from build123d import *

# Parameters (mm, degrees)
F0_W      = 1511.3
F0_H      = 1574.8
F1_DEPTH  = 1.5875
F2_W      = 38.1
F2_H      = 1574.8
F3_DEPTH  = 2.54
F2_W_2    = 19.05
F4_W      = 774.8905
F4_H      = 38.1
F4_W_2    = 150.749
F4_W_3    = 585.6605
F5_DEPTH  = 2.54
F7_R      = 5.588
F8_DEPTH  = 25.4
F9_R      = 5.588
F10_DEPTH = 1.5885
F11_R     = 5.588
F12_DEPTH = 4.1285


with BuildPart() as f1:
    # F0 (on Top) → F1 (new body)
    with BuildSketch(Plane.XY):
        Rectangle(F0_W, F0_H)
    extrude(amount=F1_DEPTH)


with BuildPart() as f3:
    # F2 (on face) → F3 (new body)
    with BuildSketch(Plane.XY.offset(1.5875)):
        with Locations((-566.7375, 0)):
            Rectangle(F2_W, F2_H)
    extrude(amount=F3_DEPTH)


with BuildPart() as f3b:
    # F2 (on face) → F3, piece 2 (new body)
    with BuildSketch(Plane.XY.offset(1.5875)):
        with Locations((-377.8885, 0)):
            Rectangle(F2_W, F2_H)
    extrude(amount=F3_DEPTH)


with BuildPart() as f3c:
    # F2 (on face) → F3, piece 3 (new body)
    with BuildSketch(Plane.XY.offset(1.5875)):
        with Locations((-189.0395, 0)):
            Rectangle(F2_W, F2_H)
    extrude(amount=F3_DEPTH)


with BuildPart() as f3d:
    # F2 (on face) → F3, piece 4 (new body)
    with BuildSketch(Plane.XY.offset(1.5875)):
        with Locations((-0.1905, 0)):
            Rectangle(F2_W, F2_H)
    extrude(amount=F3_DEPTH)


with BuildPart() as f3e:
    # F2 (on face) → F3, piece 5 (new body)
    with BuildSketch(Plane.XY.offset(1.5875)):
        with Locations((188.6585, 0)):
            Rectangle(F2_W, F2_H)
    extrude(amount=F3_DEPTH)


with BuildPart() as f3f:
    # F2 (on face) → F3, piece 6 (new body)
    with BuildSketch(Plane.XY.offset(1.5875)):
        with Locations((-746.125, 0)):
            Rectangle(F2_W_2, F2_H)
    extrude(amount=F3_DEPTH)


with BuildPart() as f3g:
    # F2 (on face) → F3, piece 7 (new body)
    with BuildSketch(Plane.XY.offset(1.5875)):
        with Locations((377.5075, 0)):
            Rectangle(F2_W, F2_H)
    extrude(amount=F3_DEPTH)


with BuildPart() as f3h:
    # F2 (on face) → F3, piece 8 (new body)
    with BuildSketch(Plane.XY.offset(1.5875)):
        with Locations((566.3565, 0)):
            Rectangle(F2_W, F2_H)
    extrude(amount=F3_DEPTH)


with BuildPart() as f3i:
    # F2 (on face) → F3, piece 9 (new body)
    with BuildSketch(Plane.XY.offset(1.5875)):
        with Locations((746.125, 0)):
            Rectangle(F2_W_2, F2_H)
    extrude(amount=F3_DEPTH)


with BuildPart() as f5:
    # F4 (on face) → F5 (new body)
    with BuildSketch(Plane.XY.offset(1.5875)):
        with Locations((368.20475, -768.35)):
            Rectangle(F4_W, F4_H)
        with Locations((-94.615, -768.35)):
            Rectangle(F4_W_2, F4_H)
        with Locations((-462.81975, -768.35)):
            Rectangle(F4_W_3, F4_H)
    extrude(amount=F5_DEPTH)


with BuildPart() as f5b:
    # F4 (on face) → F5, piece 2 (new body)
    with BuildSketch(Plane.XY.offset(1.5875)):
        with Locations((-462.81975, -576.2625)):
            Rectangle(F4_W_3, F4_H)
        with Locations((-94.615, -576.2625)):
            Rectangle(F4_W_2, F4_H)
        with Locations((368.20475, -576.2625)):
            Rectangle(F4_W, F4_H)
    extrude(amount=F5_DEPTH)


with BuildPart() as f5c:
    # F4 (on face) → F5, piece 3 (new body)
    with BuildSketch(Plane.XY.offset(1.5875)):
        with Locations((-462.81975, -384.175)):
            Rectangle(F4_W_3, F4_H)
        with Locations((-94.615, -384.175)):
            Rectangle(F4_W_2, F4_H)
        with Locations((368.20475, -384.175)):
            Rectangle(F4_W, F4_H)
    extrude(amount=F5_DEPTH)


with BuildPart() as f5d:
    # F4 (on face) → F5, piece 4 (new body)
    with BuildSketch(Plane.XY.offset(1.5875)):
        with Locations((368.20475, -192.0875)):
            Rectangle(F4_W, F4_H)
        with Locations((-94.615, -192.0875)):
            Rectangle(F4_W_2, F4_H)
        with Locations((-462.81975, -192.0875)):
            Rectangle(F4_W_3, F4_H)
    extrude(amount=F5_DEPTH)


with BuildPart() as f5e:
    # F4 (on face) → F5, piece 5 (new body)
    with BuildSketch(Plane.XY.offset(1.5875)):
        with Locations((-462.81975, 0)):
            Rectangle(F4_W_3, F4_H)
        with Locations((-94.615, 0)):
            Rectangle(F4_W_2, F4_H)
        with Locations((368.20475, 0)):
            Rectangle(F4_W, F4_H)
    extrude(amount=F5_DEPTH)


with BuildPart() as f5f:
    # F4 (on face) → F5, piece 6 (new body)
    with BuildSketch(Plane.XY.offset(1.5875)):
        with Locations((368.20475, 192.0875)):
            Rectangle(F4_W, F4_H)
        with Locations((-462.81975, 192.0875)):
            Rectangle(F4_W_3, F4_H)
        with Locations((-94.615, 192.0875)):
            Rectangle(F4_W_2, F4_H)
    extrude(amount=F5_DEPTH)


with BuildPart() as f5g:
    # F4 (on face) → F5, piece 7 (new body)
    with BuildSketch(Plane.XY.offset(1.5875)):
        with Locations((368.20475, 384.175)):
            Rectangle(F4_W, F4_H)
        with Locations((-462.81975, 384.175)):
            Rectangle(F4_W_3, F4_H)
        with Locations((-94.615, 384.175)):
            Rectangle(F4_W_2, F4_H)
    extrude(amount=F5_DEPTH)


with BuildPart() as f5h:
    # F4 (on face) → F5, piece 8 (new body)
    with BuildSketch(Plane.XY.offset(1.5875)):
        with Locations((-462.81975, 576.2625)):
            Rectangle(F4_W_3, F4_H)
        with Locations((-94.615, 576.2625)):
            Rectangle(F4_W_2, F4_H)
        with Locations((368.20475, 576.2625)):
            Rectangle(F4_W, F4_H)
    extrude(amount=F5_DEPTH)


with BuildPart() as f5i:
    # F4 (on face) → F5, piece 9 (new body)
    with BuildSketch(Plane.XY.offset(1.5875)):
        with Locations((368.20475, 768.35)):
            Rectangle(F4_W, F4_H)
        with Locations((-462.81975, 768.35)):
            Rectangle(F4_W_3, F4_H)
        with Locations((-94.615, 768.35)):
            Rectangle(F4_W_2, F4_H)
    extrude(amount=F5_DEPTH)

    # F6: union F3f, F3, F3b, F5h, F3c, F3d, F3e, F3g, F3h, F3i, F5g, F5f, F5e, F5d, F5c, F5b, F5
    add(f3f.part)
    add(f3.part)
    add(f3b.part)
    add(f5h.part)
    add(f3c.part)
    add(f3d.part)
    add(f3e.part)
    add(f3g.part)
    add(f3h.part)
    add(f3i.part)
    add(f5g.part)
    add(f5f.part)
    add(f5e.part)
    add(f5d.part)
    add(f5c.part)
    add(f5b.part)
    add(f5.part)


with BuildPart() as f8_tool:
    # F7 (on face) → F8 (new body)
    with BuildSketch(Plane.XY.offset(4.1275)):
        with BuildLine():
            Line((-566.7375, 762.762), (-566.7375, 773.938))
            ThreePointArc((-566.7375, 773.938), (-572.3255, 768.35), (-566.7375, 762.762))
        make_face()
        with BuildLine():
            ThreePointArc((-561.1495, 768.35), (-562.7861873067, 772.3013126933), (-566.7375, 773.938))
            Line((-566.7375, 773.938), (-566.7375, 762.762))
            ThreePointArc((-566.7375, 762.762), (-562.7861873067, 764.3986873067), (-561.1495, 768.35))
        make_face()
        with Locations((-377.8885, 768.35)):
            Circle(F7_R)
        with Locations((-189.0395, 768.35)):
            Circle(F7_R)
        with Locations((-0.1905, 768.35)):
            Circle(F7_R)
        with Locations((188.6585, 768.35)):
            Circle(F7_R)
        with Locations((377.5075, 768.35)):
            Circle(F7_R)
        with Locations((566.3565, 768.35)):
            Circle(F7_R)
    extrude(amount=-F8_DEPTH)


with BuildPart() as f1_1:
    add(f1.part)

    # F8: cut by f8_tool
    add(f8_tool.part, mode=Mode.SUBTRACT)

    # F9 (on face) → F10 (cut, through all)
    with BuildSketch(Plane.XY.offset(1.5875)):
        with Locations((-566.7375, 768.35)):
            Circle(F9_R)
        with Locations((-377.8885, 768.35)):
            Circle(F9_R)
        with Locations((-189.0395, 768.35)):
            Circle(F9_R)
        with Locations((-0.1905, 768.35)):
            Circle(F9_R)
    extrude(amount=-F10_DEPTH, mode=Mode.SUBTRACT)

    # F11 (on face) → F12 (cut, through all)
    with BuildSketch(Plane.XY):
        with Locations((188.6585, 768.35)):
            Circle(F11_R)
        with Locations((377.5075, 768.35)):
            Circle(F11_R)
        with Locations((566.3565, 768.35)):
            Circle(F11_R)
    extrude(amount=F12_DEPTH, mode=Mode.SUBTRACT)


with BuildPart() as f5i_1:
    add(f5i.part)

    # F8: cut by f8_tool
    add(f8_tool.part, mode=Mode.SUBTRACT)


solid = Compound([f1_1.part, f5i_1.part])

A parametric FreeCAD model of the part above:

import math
import FreeCAD as App
import Part
import Sketcher

V = App.Vector
Q = App.Units.Quantity


def add_polygon(sketch, points):
    """Adds a closed chain of lines whose ends are joined by coincident constraints."""
    first, n = sketch.GeometryCount, len(points)
    for a, b in zip(points, points[1:] + points[:1]):
        sketch.addGeometry(Part.LineSegment(App.Vector(*a, 0), App.Vector(*b, 0)), False)
    for i in range(n):
        sketch.addConstraint(Sketcher.Constraint("Coincident", first + i, 2, first + (i + 1) % n, 1))

doc = App.newDocument("Part")
body = doc.addObject("PartDesign::Body", "Body")

sketch1 = body.newObject("Sketcher::SketchObject", "Sketch")
sketch1.AttachmentSupport = (doc.getObject("XY_Plane"), [""])
sketch1.MapMode = "FlatFace"
add_polygon(sketch1, [(-756, 787), (-756, -787), (756, -787), (756, 787)])
sketch1.addConstraint(Sketcher.Constraint("Vertical", 0))
sketch1.addConstraint(Sketcher.Constraint("Horizontal", 1))
sketch1.addConstraint(Sketcher.Constraint("Vertical", 2))
sketch1.addConstraint(Sketcher.Constraint("Horizontal", 3))
sketch1.addConstraint(Sketcher.Constraint("Symmetric", 0, 2, 2, 2, -1, 1))
sketch1.addConstraint(Sketcher.Constraint("DistanceY", 0, 2, 0, 1, Q("62 in")))
sketch1.addConstraint(Sketcher.Constraint("DistanceX", 1, 1, 1, 2, Q("59.5 in")))
pad1 = body.newObject("PartDesign::Pad", "Pad")
pad1.Profile = sketch1
pad1.Length = Q("0.0625 in")
body2 = doc.addObject("PartDesign::Body", "Body001")

sketch2 = body2.newObject("Sketcher::SketchObject", "Sketch001")
sketch2.AttachmentSupport = (doc.getObject("XY_Plane001"), [""])
sketch2.MapMode = "FlatFace"
sketch2.AttachmentOffset = App.Placement(V(0, 0, 0.0625 * 25.4), App.Rotation())
add_polygon(sketch2, [(-586, 787), (-586, -787), (-548, -787), (-548, 787)])
sketch2.addConstraint(Sketcher.Constraint("Vertical", 0))
sketch2.addConstraint(Sketcher.Constraint("Horizontal", 1))
sketch2.addConstraint(Sketcher.Constraint("Vertical", 2))
sketch2.addConstraint(Sketcher.Constraint("Horizontal", 3))
sketch2.addConstraint(Sketcher.Constraint("DistanceY", 0, 2, 0, 1, Q("62 in")))
sketch2.addConstraint(Sketcher.Constraint("DistanceX", 1, 1, 1, 2, Q("1.5 in")))
sketch2.addConstraint(Sketcher.Constraint("DistanceY", 0, 2, -1, 1, Q("31 in")))
sketch2.addConstraint(Sketcher.Constraint("DistanceX", 0, 2, -1, 1, Q("23.0625 in")))
pad2 = body2.newObject("PartDesign::Pad", "Pad001")
pad2.Profile = sketch2
pad2.Length = Q("0.1 in")
body3 = doc.addObject("PartDesign::Body", "Body002")

sketch3 = body3.newObject("Sketcher::SketchObject", "Sketch002")
sketch3.AttachmentSupport = (doc.getObject("XY_Plane002"), [""])
sketch3.MapMode = "FlatFace"
sketch3.AttachmentOffset = App.Placement(V(0, 0, 0.0625 * 25.4), App.Rotation())
add_polygon(sketch3, [(-397, 787), (-397, -787), (-359, -787), (-359, 787)])
sketch3.addConstraint(Sketcher.Constraint("Vertical", 0))
sketch3.addConstraint(Sketcher.Constraint("Horizontal", 1))
sketch3.addConstraint(Sketcher.Constraint("Vertical", 2))
sketch3.addConstraint(Sketcher.Constraint("Horizontal", 3))
sketch3.addConstraint(Sketcher.Constraint("DistanceY", 0, 2, 0, 1, Q("62 in")))
sketch3.addConstraint(Sketcher.Constraint("DistanceX", 1, 1, 1, 2, Q("1.5 in")))
sketch3.addConstraint(Sketcher.Constraint("DistanceY", 0, 2, -1, 1, Q("31 in")))
sketch3.addConstraint(Sketcher.Constraint("DistanceX", 0, 2, -1, 1, Q("15.6275 in")))
pad3 = body3.newObject("PartDesign::Pad", "Pad002")
pad3.Profile = sketch3
pad3.Length = Q("0.1 in")
body4 = doc.addObject("PartDesign::Body", "Body003")

sketch4 = body4.newObject("Sketcher::SketchObject", "Sketch003")
sketch4.AttachmentSupport = (doc.getObject("XY_Plane003"), [""])
sketch4.MapMode = "FlatFace"
sketch4.AttachmentOffset = App.Placement(V(0, 0, 0.0625 * 25.4), App.Rotation())
add_polygon(sketch4, [(-208, 787), (-208, -787), (-170, -787), (-170, 787)])
sketch4.addConstraint(Sketcher.Constraint("Vertical", 0))
sketch4.addConstraint(Sketcher.Constraint("Horizontal", 1))
sketch4.addConstraint(Sketcher.Constraint("Vertical", 2))
sketch4.addConstraint(Sketcher.Constraint("Horizontal", 3))
sketch4.addConstraint(Sketcher.Constraint("DistanceY", 0, 2, 0, 1, Q("62 in")))
sketch4.addConstraint(Sketcher.Constraint("DistanceX", 1, 1, 1, 2, Q("1.5 in")))
sketch4.addConstraint(Sketcher.Constraint("DistanceY", 0, 2, -1, 1, Q("31 in")))
sketch4.addConstraint(Sketcher.Constraint("DistanceX", 0, 2, -1, 1, Q("8.1925 in")))
pad4 = body4.newObject("PartDesign::Pad", "Pad003")
pad4.Profile = sketch4
pad4.Length = Q("0.1 in")
body5 = doc.addObject("PartDesign::Body", "Body004")

sketch5 = body5.newObject("Sketcher::SketchObject", "Sketch004")
sketch5.AttachmentSupport = (doc.getObject("XY_Plane004"), [""])
sketch5.MapMode = "FlatFace"
sketch5.AttachmentOffset = App.Placement(V(0, 0, 0.0625 * 25.4), App.Rotation())
add_polygon(sketch5, [(-19, 787), (-19, -787), (19, -787), (19, 787)])
sketch5.addConstraint(Sketcher.Constraint("Vertical", 0))
sketch5.addConstraint(Sketcher.Constraint("Horizontal", 1))
sketch5.addConstraint(Sketcher.Constraint("Vertical", 2))
sketch5.addConstraint(Sketcher.Constraint("Horizontal", 3))
sketch5.addConstraint(Sketcher.Constraint("DistanceY", 0, 2, 0, 1, Q("62 in")))
sketch5.addConstraint(Sketcher.Constraint("DistanceX", 1, 1, 1, 2, Q("1.5 in")))
sketch5.addConstraint(Sketcher.Constraint("DistanceY", 0, 2, -1, 1, Q("31 in")))
sketch5.addConstraint(Sketcher.Constraint("DistanceX", 0, 2, -1, 1, Q("0.7575 in")))
pad5 = body5.newObject("PartDesign::Pad", "Pad004")
pad5.Profile = sketch5
pad5.Length = Q("0.1 in")
body6 = doc.addObject("PartDesign::Body", "Body005")

sketch6 = body6.newObject("Sketcher::SketchObject", "Sketch005")
sketch6.AttachmentSupport = (doc.getObject("XY_Plane005"), [""])
sketch6.MapMode = "FlatFace"
sketch6.AttachmentOffset = App.Placement(V(0, 0, 0.0625 * 25.4), App.Rotation())
add_polygon(sketch6, [(170, 787), (170, -787), (208, -787), (208, 787)])
sketch6.addConstraint(Sketcher.Constraint("Vertical", 0))
sketch6.addConstraint(Sketcher.Constraint("Horizontal", 1))
sketch6.addConstraint(Sketcher.Constraint("Vertical", 2))
sketch6.addConstraint(Sketcher.Constraint("Horizontal", 3))
sketch6.addConstraint(Sketcher.Constraint("DistanceY", 0, 2, 0, 1, Q("62 in")))
sketch6.addConstraint(Sketcher.Constraint("DistanceX", 1, 1, 1, 2, Q("1.5 in")))
sketch6.addConstraint(Sketcher.Constraint("DistanceY", 0, 2, -1, 1, Q("31 in")))
sketch6.addConstraint(Sketcher.Constraint("DistanceX", -1, 1, 0, 2, Q("6.6775 in")))
pad6 = body6.newObject("PartDesign::Pad", "Pad005")
pad6.Profile = sketch6
pad6.Length = Q("0.1 in")
body7 = doc.addObject("PartDesign::Body", "Body006")

sketch7 = body7.newObject("Sketcher::SketchObject", "Sketch006")
sketch7.AttachmentSupport = (doc.getObject("XY_Plane006"), [""])
sketch7.MapMode = "FlatFace"
sketch7.AttachmentOffset = App.Placement(V(0, 0, 0.0625 * 25.4), App.Rotation())
add_polygon(sketch7, [(-756, 787), (-756, -787), (-737, -787), (-737, 787)])
sketch7.addConstraint(Sketcher.Constraint("Vertical", 0))
sketch7.addConstraint(Sketcher.Constraint("Horizontal", 1))
sketch7.addConstraint(Sketcher.Constraint("Vertical", 2))
sketch7.addConstraint(Sketcher.Constraint("Horizontal", 3))
sketch7.addConstraint(Sketcher.Constraint("DistanceY", 0, 2, 0, 1, Q("62 in")))
sketch7.addConstraint(Sketcher.Constraint("DistanceY", 0, 2, -1, 1, Q("31 in")))
sketch7.addConstraint(Sketcher.Constraint("DistanceX", 1, 2, -1, 1, Q("29 in")))
sketch7.addConstraint(Sketcher.Constraint("DistanceX", 1, 1, 1, 2, Q("0.75 in")))
pad7 = body7.newObject("PartDesign::Pad", "Pad006")
pad7.Profile = sketch7
pad7.Length = Q("0.1 in")
body8 = doc.addObject("PartDesign::Body", "Body007")

sketch8 = body8.newObject("Sketcher::SketchObject", "Sketch007")
sketch8.AttachmentSupport = (doc.getObject("XY_Plane007"), [""])
sketch8.MapMode = "FlatFace"
sketch8.AttachmentOffset = App.Placement(V(0, 0, 0.0625 * 25.4), App.Rotation())
add_polygon(sketch8, [(358, 787), (358, -787), (397, -787), (397, 787)])
sketch8.addConstraint(Sketcher.Constraint("Vertical", 0))
sketch8.addConstraint(Sketcher.Constraint("Horizontal", 1))
sketch8.addConstraint(Sketcher.Constraint("Vertical", 2))
sketch8.addConstraint(Sketcher.Constraint("Horizontal", 3))
sketch8.addConstraint(Sketcher.Constraint("DistanceY", 0, 2, 0, 1, Q("62 in")))
sketch8.addConstraint(Sketcher.Constraint("DistanceX", 1, 1, 1, 2, Q("1.5 in")))
sketch8.addConstraint(Sketcher.Constraint("DistanceY", 0, 2, -1, 1, Q("31 in")))
sketch8.addConstraint(Sketcher.Constraint("DistanceX", -1, 1, 0, 2, Q("14.1125 in")))
pad8 = body8.newObject("PartDesign::Pad", "Pad007")
pad8.Profile = sketch8
pad8.Length = Q("0.1 in")
body9 = doc.addObject("PartDesign::Body", "Body008")

sketch9 = body9.newObject("Sketcher::SketchObject", "Sketch008")
sketch9.AttachmentSupport = (doc.getObject("XY_Plane008"), [""])
sketch9.MapMode = "FlatFace"
sketch9.AttachmentOffset = App.Placement(V(0, 0, 0.0625 * 25.4), App.Rotation())
add_polygon(sketch9, [(547, 787), (547, -787), (585, -787), (585, 787)])
sketch9.addConstraint(Sketcher.Constraint("Vertical", 0))
sketch9.addConstraint(Sketcher.Constraint("Horizontal", 1))
sketch9.addConstraint(Sketcher.Constraint("Vertical", 2))
sketch9.addConstraint(Sketcher.Constraint("Horizontal", 3))
sketch9.addConstraint(Sketcher.Constraint("DistanceY", 0, 2, 0, 1, Q("62 in")))
sketch9.addConstraint(Sketcher.Constraint("DistanceX", 1, 1, 1, 2, Q("1.5 in")))
sketch9.addConstraint(Sketcher.Constraint("DistanceY", 0, 2, -1, 1, Q("31 in")))
sketch9.addConstraint(Sketcher.Constraint("DistanceX", -1, 1, 0, 2, Q("21.5475 in")))
pad9 = body9.newObject("PartDesign::Pad", "Pad008")
pad9.Profile = sketch9
pad9.Length = Q("0.1 in")
body10 = doc.addObject("PartDesign::Body", "Body009")

sketch10 = body10.newObject("Sketcher::SketchObject", "Sketch009")
sketch10.AttachmentSupport = (doc.getObject("XY_Plane009"), [""])
sketch10.MapMode = "FlatFace"
sketch10.AttachmentOffset = App.Placement(V(0, 0, 0.0625 * 25.4), App.Rotation())
add_polygon(sketch10, [(737, 787), (737, -787), (756, -787), (756, 787)])
sketch10.addConstraint(Sketcher.Constraint("Vertical", 0))
sketch10.addConstraint(Sketcher.Constraint("Horizontal", 1))
sketch10.addConstraint(Sketcher.Constraint("Vertical", 2))
sketch10.addConstraint(Sketcher.Constraint("Horizontal", 3))
sketch10.addConstraint(Sketcher.Constraint("DistanceY", 0, 2, 0, 1, Q("62 in")))
sketch10.addConstraint(Sketcher.Constraint("DistanceX", -1, 1, 0, 2, Q("29 in")))
sketch10.addConstraint(Sketcher.Constraint("DistanceY", 0, 2, -1, 1, Q("31 in")))
sketch10.addConstraint(Sketcher.Constraint("DistanceX", 1, 1, 1, 2, Q("0.75 in")))
pad10 = body10.newObject("PartDesign::Pad", "Pad009")
pad10.Profile = sketch10
pad10.Length = Q("0.1 in")
body11 = doc.addObject("PartDesign::Body", "Body010")

sketch11 = body11.newObject("Sketcher::SketchObject", "Sketch010")
sketch11.AttachmentSupport = (doc.getObject("XY_Plane010"), [""])
sketch11.MapMode = "FlatFace"
sketch11.AttachmentOffset = App.Placement(V(0, 0, 0.0625 * 25.4), App.Rotation())
add_polygon(sketch11, [(756, -787), (756, -749), (-756, -749), (-756, -787)])
sketch11.addConstraint(Sketcher.Constraint("Vertical", 0))
sketch11.addConstraint(Sketcher.Constraint("Horizontal", 1))
sketch11.addConstraint(Sketcher.Constraint("Vertical", 2))
sketch11.addConstraint(Sketcher.Constraint("Horizontal", 3))
sketch11.addConstraint(Sketcher.Constraint("DistanceX", 1, 2, 1, 1, Q("59.5 in")))
sketch11.addConstraint(Sketcher.Constraint("DistanceY", 0, 1, 0, 2, Q("1.5 in")))
sketch11.addConstraint(Sketcher.Constraint("DistanceY", 2, 2, -1, 1, Q("31 in")))
sketch11.addConstraint(Sketcher.Constraint("DistanceX", -1, 1, 0, 2, Q("29.75 in")))
pad11 = body11.newObject("PartDesign::Pad", "Pad010")
pad11.Profile = sketch11
pad11.Length = Q("0.1 in")
body12 = doc.addObject("PartDesign::Body", "Body011")

sketch12 = body12.newObject("Sketcher::SketchObject", "Sketch011")
sketch12.AttachmentSupport = (doc.getObject("XY_Plane011"), [""])
sketch12.MapMode = "FlatFace"
sketch12.AttachmentOffset = App.Placement(V(0, 0, 0.0625 * 25.4), App.Rotation())
add_polygon(sketch12, [(-756, -557), (-756, -595), (756, -595), (756, -557)])
sketch12.addConstraint(Sketcher.Constraint("Vertical", 0))
sketch12.addConstraint(Sketcher.Constraint("Horizontal", 1))
sketch12.addConstraint(Sketcher.Constraint("Vertical", 2))
sketch12.addConstraint(Sketcher.Constraint("Horizontal", 3))
sketch12.addConstraint(Sketcher.Constraint("DistanceX", 1, 1, 1, 2, Q("59.5 in")))
sketch12.addConstraint(Sketcher.Constraint("DistanceY", 0, 2, 0, 1, Q("1.5 in")))
sketch12.addConstraint(Sketcher.Constraint("DistanceX", 0, 2, -1, 1, Q("29.75 in")))
sketch12.addConstraint(Sketcher.Constraint("DistanceY", 0, 2, -1, 1, Q("23.4375 in")))
pad12 = body12.newObject("PartDesign::Pad", "Pad011")
pad12.Profile = sketch12
pad12.Length = Q("0.1 in")
body13 = doc.addObject("PartDesign::Body", "Body012")

sketch13 = body13.newObject("Sketcher::SketchObject", "Sketch012")
sketch13.AttachmentSupport = (doc.getObject("XY_Plane012"), [""])
sketch13.MapMode = "FlatFace"
sketch13.AttachmentOffset = App.Placement(V(0, 0, 0.0625 * 25.4), App.Rotation())
add_polygon(sketch13, [(-756, -365), (-756, -403), (756, -403), (756, -365)])
sketch13.addConstraint(Sketcher.Constraint("Vertical", 0))
sketch13.addConstraint(Sketcher.Constraint("Horizontal", 1))
sketch13.addConstraint(Sketcher.Constraint("Vertical", 2))
sketch13.addConstraint(Sketcher.Constraint("Horizontal", 3))
sketch13.addConstraint(Sketcher.Constraint("DistanceX", 1, 1, 1, 2, Q("59.5 in")))
sketch13.addConstraint(Sketcher.Constraint("DistanceY", 0, 2, 0, 1, Q("1.5 in")))
sketch13.addConstraint(Sketcher.Constraint("DistanceX", 0, 2, -1, 1, Q("29.75 in")))
sketch13.addConstraint(Sketcher.Constraint("DistanceY", 0, 2, -1, 1, Q("15.875 in")))
pad13 = body13.newObject("PartDesign::Pad", "Pad012")
pad13.Profile = sketch13
pad13.Length = Q("0.1 in")
body14 = doc.addObject("PartDesign::Body", "Body013")

sketch14 = body14.newObject("Sketcher::SketchObject", "Sketch013")
sketch14.AttachmentSupport = (doc.getObject("XY_Plane013"), [""])
sketch14.MapMode = "FlatFace"
sketch14.AttachmentOffset = App.Placement(V(0, 0, 0.0625 * 25.4), App.Rotation())
add_polygon(sketch14, [(756, -211), (756, -173), (-756, -173), (-756, -211)])
sketch14.addConstraint(Sketcher.Constraint("Vertical", 0))
sketch14.addConstraint(Sketcher.Constraint("Horizontal", 1))
sketch14.addConstraint(Sketcher.Constraint("Vertical", 2))
sketch14.addConstraint(Sketcher.Constraint("Horizontal", 3))
sketch14.addConstraint(Sketcher.Constraint("DistanceX", 1, 2, 1, 1, Q("59.5 in")))
sketch14.addConstraint(Sketcher.Constraint("DistanceY", 0, 1, 0, 2, Q("1.5 in")))
sketch14.addConstraint(Sketcher.Constraint("DistanceX", -1, 1, 0, 2, Q("29.75 in")))
sketch14.addConstraint(Sketcher.Constraint("DistanceY", 0, 2, -1, 1, Q("6.8125 in")))
pad14 = body14.newObject("PartDesign::Pad", "Pad013")
pad14.Profile = sketch14
pad14.Length = Q("0.1 in")
body15 = doc.addObject("PartDesign::Body", "Body014")

sketch15 = body15.newObject("Sketcher::SketchObject", "Sketch014")
sketch15.AttachmentSupport = (doc.getObject("XY_Plane014"), [""])
sketch15.MapMode = "FlatFace"
sketch15.AttachmentOffset = App.Placement(V(0, 0, 0.0625 * 25.4), App.Rotation())
add_polygon(sketch15, [(-756, 19), (-756, -19), (756, -19), (756, 19)])
sketch15.addConstraint(Sketcher.Constraint("Vertical", 0))
sketch15.addConstraint(Sketcher.Constraint("Horizontal", 1))
sketch15.addConstraint(Sketcher.Constraint("Vertical", 2))
sketch15.addConstraint(Sketcher.Constraint("Horizontal", 3))
sketch15.addConstraint(Sketcher.Constraint("Symmetric", 0, 2, 2, 2, -1, 1))
sketch15.addConstraint(Sketcher.Constraint("DistanceX", 1, 1, 1, 2, Q("59.5 in")))
sketch15.addConstraint(Sketcher.Constraint("DistanceY", 0, 2, 0, 1, Q("1.5 in")))
pad15 = body15.newObject("PartDesign::Pad", "Pad014")
pad15.Profile = sketch15
pad15.Length = Q("0.1 in")
body16 = doc.addObject("PartDesign::Body", "Body015")

sketch16 = body16.newObject("Sketcher::SketchObject", "Sketch015")
sketch16.AttachmentSupport = (doc.getObject("XY_Plane015"), [""])
sketch16.MapMode = "FlatFace"
sketch16.AttachmentOffset = App.Placement(V(0, 0, 0.0625 * 25.4), App.Rotation())
add_polygon(sketch16, [(756, 173), (756, 211), (-756, 211), (-756, 173)])
sketch16.addConstraint(Sketcher.Constraint("Vertical", 0))
sketch16.addConstraint(Sketcher.Constraint("Horizontal", 1))
sketch16.addConstraint(Sketcher.Constraint("Vertical", 2))
sketch16.addConstraint(Sketcher.Constraint("Horizontal", 3))
sketch16.addConstraint(Sketcher.Constraint("DistanceX", 1, 2, 1, 1, Q("59.5 in")))
sketch16.addConstraint(Sketcher.Constraint("DistanceY", 0, 1, 0, 2, Q("1.5 in")))
sketch16.addConstraint(Sketcher.Constraint("DistanceX", -1, 1, 0, 2, Q("29.75 in")))
sketch16.addConstraint(Sketcher.Constraint("DistanceY", -1, 1, 0, 2, Q("8.3125 in")))
pad16 = body16.newObject("PartDesign::Pad", "Pad015")
pad16.Profile = sketch16
pad16.Length = Q("0.1 in")
body17 = doc.addObject("PartDesign::Body", "Body016")

sketch17 = body17.newObject("Sketcher::SketchObject", "Sketch016")
sketch17.AttachmentSupport = (doc.getObject("XY_Plane016"), [""])
sketch17.MapMode = "FlatFace"
sketch17.AttachmentOffset = App.Placement(V(0, 0, 0.0625 * 25.4), App.Rotation())
add_polygon(sketch17, [(756, 365), (756, 403), (-756, 403), (-756, 365)])
sketch17.addConstraint(Sketcher.Constraint("Vertical", 0))
sketch17.addConstraint(Sketcher.Constraint("Horizontal", 1))
sketch17.addConstraint(Sketcher.Constraint("Vertical", 2))
sketch17.addConstraint(Sketcher.Constraint("Horizontal", 3))
sketch17.addConstraint(Sketcher.Constraint("DistanceX", 1, 2, 1, 1, Q("59.5 in")))
sketch17.addConstraint(Sketcher.Constraint("DistanceY", 0, 1, 0, 2, Q("1.5 in")))
sketch17.addConstraint(Sketcher.Constraint("DistanceX", -1, 1, 0, 2, Q("29.75 in")))
sketch17.addConstraint(Sketcher.Constraint("DistanceY", -1, 1, 0, 2, Q("15.875 in")))
pad17 = body17.newObject("PartDesign::Pad", "Pad016")
pad17.Profile = sketch17
pad17.Length = Q("0.1 in")
body18 = doc.addObject("PartDesign::Body", "Body017")

sketch18 = body18.newObject("Sketcher::SketchObject", "Sketch017")
sketch18.AttachmentSupport = (doc.getObject("XY_Plane017"), [""])
sketch18.MapMode = "FlatFace"
sketch18.AttachmentOffset = App.Placement(V(0, 0, 0.0625 * 25.4), App.Rotation())
add_polygon(sketch18, [(-756, 595), (-756, 557), (756, 557), (756, 595)])
sketch18.addConstraint(Sketcher.Constraint("Vertical", 0))
sketch18.addConstraint(Sketcher.Constraint("Horizontal", 1))
sketch18.addConstraint(Sketcher.Constraint("Vertical", 2))
sketch18.addConstraint(Sketcher.Constraint("Horizontal", 3))
sketch18.addConstraint(Sketcher.Constraint("DistanceX", 1, 1, 1, 2, Q("59.5 in")))
sketch18.addConstraint(Sketcher.Constraint("DistanceY", 0, 2, 0, 1, Q("1.5 in")))
sketch18.addConstraint(Sketcher.Constraint("DistanceX", 0, 2, -1, 1, Q("29.75 in")))
sketch18.addConstraint(Sketcher.Constraint("DistanceY", -1, 1, 0, 2, Q("21.9375 in")))
pad18 = body18.newObject("PartDesign::Pad", "Pad017")
pad18.Profile = sketch18
pad18.Length = Q("0.1 in")
body19 = doc.addObject("PartDesign::Body", "Body018")

sketch19 = body19.newObject("Sketcher::SketchObject", "Sketch018")
sketch19.AttachmentSupport = (doc.getObject("XY_Plane018"), [""])
sketch19.MapMode = "FlatFace"
sketch19.AttachmentOffset = App.Placement(V(0, 0, 0.0625 * 25.4), App.Rotation())
add_polygon(sketch19, [(756, 749), (756, 787), (-756, 787), (-756, 749)])
sketch19.addConstraint(Sketcher.Constraint("Vertical", 0))
sketch19.addConstraint(Sketcher.Constraint("Horizontal", 1))
sketch19.addConstraint(Sketcher.Constraint("Vertical", 2))
sketch19.addConstraint(Sketcher.Constraint("Horizontal", 3))
sketch19.addConstraint(Sketcher.Constraint("DistanceX", 1, 2, 1, 1, Q("59.5 in")))
sketch19.addConstraint(Sketcher.Constraint("DistanceY", 0, 1, 0, 2, Q("1.5 in")))
sketch19.addConstraint(Sketcher.Constraint("DistanceY", -1, 1, 0, 2, Q("31 in")))
sketch19.addConstraint(Sketcher.Constraint("DistanceX", -1, 1, 0, 2, Q("29.75 in")))
pad19 = body19.newObject("PartDesign::Pad", "Pad018")
pad19.Profile = sketch19
pad19.Length = Q("0.1 in")
doc.recompute()

boolean = body19.newObject("PartDesign::Boolean", "Boolean")
boolean.Type = "Fuse"
boolean.addObjects([body7])
doc.recompute()

boolean2 = body19.newObject("PartDesign::Boolean", "Boolean001")
boolean2.Type = "Fuse"
boolean2.addObjects([body2])
doc.recompute()

boolean3 = body19.newObject("PartDesign::Boolean", "Boolean002")
boolean3.Type = "Fuse"
boolean3.addObjects([body3])
doc.recompute()

boolean4 = body19.newObject("PartDesign::Boolean", "Boolean003")
boolean4.Type = "Fuse"
boolean4.addObjects([body18])
doc.recompute()

boolean5 = body19.newObject("PartDesign::Boolean", "Boolean004")
boolean5.Type = "Fuse"
boolean5.addObjects([body4])
doc.recompute()

boolean6 = body19.newObject("PartDesign::Boolean", "Boolean005")
boolean6.Type = "Fuse"
boolean6.addObjects([body5])
doc.recompute()

boolean7 = body19.newObject("PartDesign::Boolean", "Boolean006")
boolean7.Type = "Fuse"
boolean7.addObjects([body6])
doc.recompute()

boolean8 = body19.newObject("PartDesign::Boolean", "Boolean007")
boolean8.Type = "Fuse"
boolean8.addObjects([body8])
doc.recompute()

boolean9 = body19.newObject("PartDesign::Boolean", "Boolean008")
boolean9.Type = "Fuse"
boolean9.addObjects([body9])
doc.recompute()

boolean10 = body19.newObject("PartDesign::Boolean", "Boolean009")
boolean10.Type = "Fuse"
boolean10.addObjects([body10])
doc.recompute()

boolean11 = body19.newObject("PartDesign::Boolean", "Boolean010")
boolean11.Type = "Fuse"
boolean11.addObjects([body17])
doc.recompute()

boolean12 = body19.newObject("PartDesign::Boolean", "Boolean011")
boolean12.Type = "Fuse"
boolean12.addObjects([body16])
doc.recompute()

boolean13 = body19.newObject("PartDesign::Boolean", "Boolean012")
boolean13.Type = "Fuse"
boolean13.addObjects([body15])
doc.recompute()

boolean14 = body19.newObject("PartDesign::Boolean", "Boolean013")
boolean14.Type = "Fuse"
boolean14.addObjects([body14])
doc.recompute()

boolean15 = body19.newObject("PartDesign::Boolean", "Boolean014")
boolean15.Type = "Fuse"
boolean15.addObjects([body13])
doc.recompute()

boolean16 = body19.newObject("PartDesign::Boolean", "Boolean015")
boolean16.Type = "Fuse"
boolean16.addObjects([body12])
doc.recompute()

boolean17 = body19.newObject("PartDesign::Boolean", "Boolean016")
boolean17.Type = "Fuse"
boolean17.addObjects([body11])
body20 = doc.addObject("PartDesign::Body", "Body019")
body20.AllowCompound = True

sketch20 = body20.newObject("Sketcher::SketchObject", "Sketch019")
sketch20.AttachmentSupport = (doc.getObject("XY_Plane019"), [""])
sketch20.MapMode = "FlatFace"
sketch20.AttachmentOffset = App.Placement(V(0, 0, 0.1625 * 25.4), App.Rotation())
sketch20.addGeometry(Part.ArcOfCircle(Part.Circle(V(-567, 768, 0), V(0, 0, 1), 6), math.radians(90), math.radians(270)), False)
sketch20.addGeometry(Part.ArcOfCircle(Part.Circle(V(-567, 768, 0), V(0, 0, 1), 6), math.radians(-90), math.radians(0)), False)
sketch20.addGeometry(Part.ArcOfCircle(Part.Circle(V(-567, 768, 0), V(0, 0, 1), 6), math.radians(0), math.radians(90)), False)
sketch20.addGeometry(Part.Circle(V(-378, 768, 0), V(0, 0, 1), 6), False)
sketch20.addGeometry(Part.Circle(V(-189, 768, 0), V(0, 0, 1), 6), False)
sketch20.addGeometry(Part.Circle(V(0, 768, 0), V(0, 0, 1), 6), False)
sketch20.addGeometry(Part.Circle(V(189, 768, 0), V(0, 0, 1), 6), False)
sketch20.addGeometry(Part.Circle(V(378, 768, 0), V(0, 0, 1), 6), False)
sketch20.addGeometry(Part.Circle(V(566, 768, 0), V(0, 0, 1), 6), False)
sketch20.addConstraint(Sketcher.Constraint("Tangent", 0, 2, 1, 1))
sketch20.addConstraint(Sketcher.Constraint("Tangent", 1, 2, 2, 1))
sketch20.addConstraint(Sketcher.Constraint("Tangent", 2, 2, 0, 1))
sketch20.addConstraint(Sketcher.Constraint("Equal", 2, 3))
sketch20.addConstraint(Sketcher.Constraint("Equal", 3, 4))
sketch20.addConstraint(Sketcher.Constraint("Equal", 4, 5))
sketch20.addConstraint(Sketcher.Constraint("Equal", 5, 6))
sketch20.addConstraint(Sketcher.Constraint("Equal", 6, 7))
sketch20.addConstraint(Sketcher.Constraint("Equal", 7, 8))
sketch20.addConstraint(Sketcher.Constraint("Horizontal", 2, 3, 3, 3))
sketch20.addConstraint(Sketcher.Constraint("Horizontal", 3, 3, 4, 3))
sketch20.addConstraint(Sketcher.Constraint("Horizontal", 4, 3, 5, 3))
sketch20.addConstraint(Sketcher.Constraint("Horizontal", 5, 3, 6, 3))
sketch20.addConstraint(Sketcher.Constraint("Horizontal", 6, 3, 7, 3))
sketch20.addConstraint(Sketcher.Constraint("Horizontal", 7, 3, 8, 3))
sketch20.addConstraint(Sketcher.Constraint("Horizontal", 8, 3, 1, 2))
sketch20.addConstraint(Sketcher.Constraint("Vertical", 2, 3, 0, 2))
sketch20.addConstraint(Sketcher.Constraint("Vertical", 0, 2, 2, 2))
sketch20.addConstraint(Sketcher.Constraint("Diameter", 3, Q("0.44 in")))
sketch20.addConstraint(Sketcher.Constraint("DistanceY", -1, 1, 0, 3, Q("30.25 in")))
sketch20.addConstraint(Sketcher.Constraint("DistanceX", 0, 3, 4, 3, Q("14.87 in")))
sketch20.addConstraint(Sketcher.Constraint("DistanceX", 3, 3, 5, 3, Q("14.87 in")))
sketch20.addConstraint(Sketcher.Constraint("DistanceX", 4, 3, 6, 3, Q("14.87 in")))
sketch20.addConstraint(Sketcher.Constraint("DistanceX", 5, 3, 7, 3, Q("14.87 in")))
sketch20.addConstraint(Sketcher.Constraint("DistanceX", 6, 3, 8, 3, Q("14.87 in")))
sketch20.addConstraint(Sketcher.Constraint("DistanceX", 0, 3, -1, 1, Q("22.3125 in")))
sketch20.addConstraint(Sketcher.Constraint("DistanceX", 0, 3, 3, 3, Q("7.435 in")))
pad20 = body20.newObject("PartDesign::Pad", "Pad019")
pad20.Profile = sketch20
pad20.Length = Q("1 in")
pad20.Reversed = True
doc.recompute()

body21 = doc.addObject("PartDesign::Body", "Body020")
body21.BaseFeature = body20
boolean18 = body.newObject("PartDesign::Boolean", "Boolean017")
boolean18.Type = "Cut"
boolean18.addObjects([body21])
doc.recompute()

sketch21 = body.newObject("Sketcher::SketchObject", "Sketch020")
sketch21.AttachmentSupport = (doc.getObject("XY_Plane"), [""])
sketch21.MapMode = "FlatFace"
sketch21.AttachmentOffset = App.Placement(V(0, 0, 0.0625 * 25.4), App.Rotation())
sketch21.addGeometry(Part.Circle(V(-567, 768, 0), V(0, 0, 1), 6), False)
sketch21.addGeometry(Part.Circle(V(-378, 768, 0), V(0, 0, 1), 6), False)
sketch21.addGeometry(Part.Circle(V(-189, 768, 0), V(0, 0, 1), 6), False)
sketch21.addGeometry(Part.Circle(V(0, 768, 0), V(0, 0, 1), 6), False)
sketch21.addConstraint(Sketcher.Constraint("Equal", 0, 1))
sketch21.addConstraint(Sketcher.Constraint("Equal", 1, 2))
sketch21.addConstraint(Sketcher.Constraint("Equal", 2, 3))
sketch21.addConstraint(Sketcher.Constraint("Horizontal", 0, 3, 1, 3))
sketch21.addConstraint(Sketcher.Constraint("Horizontal", 1, 3, 2, 3))
sketch21.addConstraint(Sketcher.Constraint("Horizontal", 2, 3, 3, 3))
sketch21.addConstraint(Sketcher.Constraint("Diameter", 0, Q("0.44 in")))
sketch21.addConstraint(Sketcher.Constraint("DistanceY", -1, 1, 0, 3, Q("30.25 in")))
sketch21.addConstraint(Sketcher.Constraint("DistanceX", 0, 3, 2, 3, Q("14.87 in")))
sketch21.addConstraint(Sketcher.Constraint("DistanceX", 1, 3, 3, 3, Q("14.87 in")))
sketch21.addConstraint(Sketcher.Constraint("DistanceX", 0, 3, -1, 1, Q("22.3125 in")))
sketch21.addConstraint(Sketcher.Constraint("DistanceX", 0, 3, 1, 3, Q("7.435 in")))
pocket1 = body.newObject("PartDesign::Pocket", "Pocket")
pocket1.Profile = sketch21
pocket1.Type = "ThroughAll"

sketch22 = body.newObject("Sketcher::SketchObject", "Sketch021")
sketch22.AttachmentSupport = (doc.getObject("XY_Plane"), [""])
sketch22.MapMode = "FlatFace"
sketch22.addGeometry(Part.Circle(V(189, 768, 0), V(0, 0, 1), 6), False)
sketch22.addGeometry(Part.Circle(V(378, 768, 0), V(0, 0, 1), 6), False)
sketch22.addGeometry(Part.Circle(V(566, 768, 0), V(0, 0, 1), 6), False)
sketch22.addConstraint(Sketcher.Constraint("Equal", 0, 1))
sketch22.addConstraint(Sketcher.Constraint("Equal", 1, 2))
sketch22.addConstraint(Sketcher.Constraint("Horizontal", 0, 3, 1, 3))
sketch22.addConstraint(Sketcher.Constraint("Horizontal", 1, 3, 2, 3))
sketch22.addConstraint(Sketcher.Constraint("Diameter", 0, Q("0.44 in")))
sketch22.addConstraint(Sketcher.Constraint("DistanceY", -1, 1, 0, 3, Q("30.25 in")))
sketch22.addConstraint(Sketcher.Constraint("DistanceX", 0, 3, 2, 3, Q("14.87 in")))
sketch22.addConstraint(Sketcher.Constraint("DistanceX", 0, 3, 1, 3, Q("7.435 in")))
sketch22.addConstraint(Sketcher.Constraint("DistanceX", -1, 1, 0, 3, Q("7.4275 in")))
pocket2 = body.newObject("PartDesign::Pocket", "Pocket001")
pocket2.Profile = sketch22
pocket2.Type = "ThroughAll"
pocket2.Reversed = True
doc.recompute()

boolean19 = body19.newObject("PartDesign::Boolean", "Boolean018")
boolean19.Type = "Cut"
boolean19.addObjects([body20])

doc.recompute()
